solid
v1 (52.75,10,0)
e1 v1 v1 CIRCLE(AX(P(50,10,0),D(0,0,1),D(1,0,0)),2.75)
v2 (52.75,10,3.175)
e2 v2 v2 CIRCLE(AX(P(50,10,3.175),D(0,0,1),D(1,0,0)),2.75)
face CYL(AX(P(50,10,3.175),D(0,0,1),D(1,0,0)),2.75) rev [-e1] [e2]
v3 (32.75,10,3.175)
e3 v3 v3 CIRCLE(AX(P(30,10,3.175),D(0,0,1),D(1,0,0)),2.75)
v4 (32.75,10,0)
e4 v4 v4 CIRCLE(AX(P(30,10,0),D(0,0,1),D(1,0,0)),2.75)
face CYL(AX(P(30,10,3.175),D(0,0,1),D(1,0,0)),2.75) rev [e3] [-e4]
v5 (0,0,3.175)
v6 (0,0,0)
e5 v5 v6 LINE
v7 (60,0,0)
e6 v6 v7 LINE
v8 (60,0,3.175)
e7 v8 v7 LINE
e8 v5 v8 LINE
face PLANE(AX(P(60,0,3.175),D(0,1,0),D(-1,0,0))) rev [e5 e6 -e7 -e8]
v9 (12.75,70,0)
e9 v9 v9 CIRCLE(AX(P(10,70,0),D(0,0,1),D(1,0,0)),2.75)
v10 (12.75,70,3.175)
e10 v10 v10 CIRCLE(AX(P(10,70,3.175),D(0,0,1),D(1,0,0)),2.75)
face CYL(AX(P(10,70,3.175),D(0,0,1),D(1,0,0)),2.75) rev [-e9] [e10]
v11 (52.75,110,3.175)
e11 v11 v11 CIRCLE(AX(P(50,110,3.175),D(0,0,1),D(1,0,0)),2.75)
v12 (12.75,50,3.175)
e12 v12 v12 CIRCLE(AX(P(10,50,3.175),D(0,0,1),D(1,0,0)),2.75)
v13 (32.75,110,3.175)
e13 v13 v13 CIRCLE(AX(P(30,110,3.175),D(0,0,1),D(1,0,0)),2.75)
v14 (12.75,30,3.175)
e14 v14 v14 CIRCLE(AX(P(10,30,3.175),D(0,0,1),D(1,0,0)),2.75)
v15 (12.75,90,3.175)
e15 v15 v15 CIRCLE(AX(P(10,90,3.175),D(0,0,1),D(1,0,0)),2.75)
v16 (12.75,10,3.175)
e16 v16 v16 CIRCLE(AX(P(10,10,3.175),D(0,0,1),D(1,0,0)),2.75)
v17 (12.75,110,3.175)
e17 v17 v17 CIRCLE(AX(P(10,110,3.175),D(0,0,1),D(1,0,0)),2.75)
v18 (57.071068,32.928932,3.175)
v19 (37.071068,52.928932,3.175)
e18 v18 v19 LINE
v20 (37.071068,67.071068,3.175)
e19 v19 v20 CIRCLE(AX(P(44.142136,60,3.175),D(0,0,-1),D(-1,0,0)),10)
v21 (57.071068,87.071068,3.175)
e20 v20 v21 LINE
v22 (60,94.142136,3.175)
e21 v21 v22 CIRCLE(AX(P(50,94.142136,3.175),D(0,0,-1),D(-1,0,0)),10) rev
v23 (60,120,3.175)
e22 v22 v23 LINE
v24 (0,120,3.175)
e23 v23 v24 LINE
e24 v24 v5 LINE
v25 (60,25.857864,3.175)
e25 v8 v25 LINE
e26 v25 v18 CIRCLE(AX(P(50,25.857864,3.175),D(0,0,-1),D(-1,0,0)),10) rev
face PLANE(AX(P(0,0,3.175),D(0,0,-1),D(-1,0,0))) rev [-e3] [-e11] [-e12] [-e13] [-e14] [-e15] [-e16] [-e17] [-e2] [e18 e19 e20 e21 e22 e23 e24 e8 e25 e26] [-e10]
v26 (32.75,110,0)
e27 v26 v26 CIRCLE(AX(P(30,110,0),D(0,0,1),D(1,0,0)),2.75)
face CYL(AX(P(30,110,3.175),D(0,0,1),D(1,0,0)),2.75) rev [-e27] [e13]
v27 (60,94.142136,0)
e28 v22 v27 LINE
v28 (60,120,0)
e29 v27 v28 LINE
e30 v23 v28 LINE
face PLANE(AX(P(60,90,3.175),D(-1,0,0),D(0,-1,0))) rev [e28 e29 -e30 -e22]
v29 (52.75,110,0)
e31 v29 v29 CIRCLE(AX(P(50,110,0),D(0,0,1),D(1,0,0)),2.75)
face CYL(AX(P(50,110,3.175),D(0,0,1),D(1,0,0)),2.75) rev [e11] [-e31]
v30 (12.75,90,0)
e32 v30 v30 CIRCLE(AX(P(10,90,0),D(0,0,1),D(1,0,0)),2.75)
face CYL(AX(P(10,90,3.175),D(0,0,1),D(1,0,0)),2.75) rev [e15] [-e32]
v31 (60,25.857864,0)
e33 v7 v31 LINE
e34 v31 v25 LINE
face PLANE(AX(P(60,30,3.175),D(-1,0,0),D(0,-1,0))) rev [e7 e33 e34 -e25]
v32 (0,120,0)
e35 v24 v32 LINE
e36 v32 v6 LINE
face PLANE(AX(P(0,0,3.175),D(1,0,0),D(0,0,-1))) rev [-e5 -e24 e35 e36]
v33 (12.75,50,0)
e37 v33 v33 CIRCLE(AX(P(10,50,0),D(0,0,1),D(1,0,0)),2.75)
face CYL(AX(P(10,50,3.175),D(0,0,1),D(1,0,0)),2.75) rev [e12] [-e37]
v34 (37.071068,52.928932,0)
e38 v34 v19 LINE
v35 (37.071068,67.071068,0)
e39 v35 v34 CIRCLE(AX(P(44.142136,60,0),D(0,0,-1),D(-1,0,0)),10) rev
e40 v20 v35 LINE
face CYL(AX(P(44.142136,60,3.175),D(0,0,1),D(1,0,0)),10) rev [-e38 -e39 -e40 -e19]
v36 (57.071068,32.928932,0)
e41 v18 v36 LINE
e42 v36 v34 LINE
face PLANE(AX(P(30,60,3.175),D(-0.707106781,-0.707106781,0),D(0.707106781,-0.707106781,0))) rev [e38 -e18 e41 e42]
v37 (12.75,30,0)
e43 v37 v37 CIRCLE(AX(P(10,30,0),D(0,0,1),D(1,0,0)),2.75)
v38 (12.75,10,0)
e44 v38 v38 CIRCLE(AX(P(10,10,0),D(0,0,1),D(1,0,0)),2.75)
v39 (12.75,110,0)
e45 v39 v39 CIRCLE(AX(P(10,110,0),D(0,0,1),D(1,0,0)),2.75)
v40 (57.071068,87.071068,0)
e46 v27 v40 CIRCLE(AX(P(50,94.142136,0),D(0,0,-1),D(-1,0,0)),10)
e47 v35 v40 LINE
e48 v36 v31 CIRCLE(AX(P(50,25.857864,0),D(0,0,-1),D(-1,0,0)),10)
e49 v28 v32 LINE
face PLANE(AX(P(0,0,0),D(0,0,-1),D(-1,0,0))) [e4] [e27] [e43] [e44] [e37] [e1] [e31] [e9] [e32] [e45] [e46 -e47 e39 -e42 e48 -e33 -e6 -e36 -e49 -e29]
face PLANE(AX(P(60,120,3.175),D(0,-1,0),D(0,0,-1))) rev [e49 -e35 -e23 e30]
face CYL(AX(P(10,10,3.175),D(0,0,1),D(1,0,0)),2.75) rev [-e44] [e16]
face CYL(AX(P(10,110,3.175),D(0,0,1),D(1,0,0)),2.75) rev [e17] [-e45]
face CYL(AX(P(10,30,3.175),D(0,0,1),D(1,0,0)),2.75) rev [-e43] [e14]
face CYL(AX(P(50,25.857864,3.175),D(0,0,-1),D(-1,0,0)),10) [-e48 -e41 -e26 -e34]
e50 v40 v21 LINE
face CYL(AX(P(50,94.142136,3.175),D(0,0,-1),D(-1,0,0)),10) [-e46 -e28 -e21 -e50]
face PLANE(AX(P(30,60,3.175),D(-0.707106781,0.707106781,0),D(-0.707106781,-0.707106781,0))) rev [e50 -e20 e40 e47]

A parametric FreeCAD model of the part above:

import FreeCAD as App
import Part
import Sketcher
from FreeCAD import Vector
Q = App.Units.Quantity


def edges_at(feature, points):
    """Names of the edges that pass closest to the given points."""
    edges = feature.Shape.Edges
    near = lambda p: min(range(len(edges)), key=lambda i: edges[i].distToShape(Part.Vertex(*p))[0])
    return sorted({f"Edge{near(p) + 1}" for p in points})

doc = App.newDocument("Part")
params = doc.addObject("Spreadsheet::Sheet", "Params")
for row, (alias, value) in enumerate([
    ("sketch1_width", "60 mm"),
    ("sketch1_height", "120 mm"),
    ("sketch1_height2", "30 mm"),
    ("pad1_length", "3.175 mm"),
    ("sketch2_diameter", "5.5 mm"),
    ("hole_diameter", "5.5 mm"),
    ("linearpattern_pitch", "20 mm"),
    ("linearpattern2_pitch", "20 mm"),
    ("fillet_radius", "10 mm"),
    ("sketch3_diameter", "5.5 mm"),
    ("hole2_diameter", "5.5 mm"),
    ("sketch4_diameter", "5.5 mm"),
    ("hole3_diameter", "5.5 mm"),
    ("sketch5_diameter", "5.5 mm"),
    ("hole4_diameter", "5.5 mm"),
], start=1):
    params.set(f"A{row}", alias)
    params.set(f"B{row}", "=" + value)
    params.setAlias(f"B{row}", alias)

body = doc.addObject("PartDesign::Body", "Body")

# Sketch on XY plane
sketch1 = doc.addObject("Sketcher::SketchObject", "Sketch")
body.addObject(sketch1)
sketch1.AttachmentSupport = (doc.XY_Plane, [""])
sketch1.MapMode = "FlatFace"
sketch1.addGeometry(Part.LineSegment(Vector(0, 120, 0), Vector(0, 0, 0)), False)
sketch1.addGeometry(Part.LineSegment(Vector(0, 0, 0), Vector(60, 0, 0)), False)
sketch1.addGeometry(Part.LineSegment(Vector(60, 0, 0), Vector(60, 30, 0)), False)
sketch1.addGeometry(Part.LineSegment(Vector(60, 30, 0), Vector(30, 60, 0)), False)
sketch1.addGeometry(Part.LineSegment(Vector(30, 60, 0), Vector(60, 90, 0)), False)
sketch1.addGeometry(Part.LineSegment(Vector(60, 90, 0), Vector(60, 120, 0)), False)
sketch1.addGeometry(Part.LineSegment(Vector(60, 120, 0), Vector(0, 120, 0)), False)
sketch1.addConstraint(Sketcher.Constraint("Coincident", 0, 2, 1, 1))
sketch1.addConstraint(Sketcher.Constraint("Coincident", 1, 2, 2, 1))
sketch1.addConstraint(Sketcher.Constraint("Coincident", 2, 2, 3, 1))
sketch1.addConstraint(Sketcher.Constraint("Coincident", 3, 2, 4, 1))
sketch1.addConstraint(Sketcher.Constraint("Coincident", 4, 2, 5, 1))
sketch1.addConstraint(Sketcher.Constraint("Coincident", 5, 2, 6, 1))
sketch1.addConstraint(Sketcher.Constraint("Coincident", 6, 2, 0, 1))
sketch1.addConstraint(Sketcher.Constraint("Vertical", 0))
sketch1.addConstraint(Sketcher.Constraint("Horizontal", 1))
sketch1.addConstraint(Sketcher.Constraint("Vertical", 2))
sketch1.addConstraint(Sketcher.Constraint("Vertical", 5))
sketch1.addConstraint(Sketcher.Constraint("Horizontal", 6))
sketch1.addConstraint(Sketcher.Constraint("Coincident", 0, 2, -1, 1))
sketch1.addConstraint(Sketcher.Constraint("Perpendicular", 3, 4))
sketch1.addConstraint(Sketcher.Constraint("Vertical", 2, 2, 4, 2))
sketch1.addConstraint(Sketcher.Constraint("Equal", 2, 5))
sketch1.addConstraint(Sketcher.Constraint("Equal", 3, 4))
sketch1.addConstraint(Sketcher.Constraint("DistanceX", 1, 1, 1, 2, Q("60 mm")))
sketch1.addConstraint(Sketcher.Constraint("DistanceY", 0, 2, 0, 1, Q("120 mm")))
sketch1.addConstraint(Sketcher.Constraint("DistanceY", 2, 1, 2, 2, Q("30 mm")))
sketch1.setExpression("Constraints[17]", "Params.sketch1_width")
sketch1.setExpression("Constraints[18]", "Params.sketch1_height")
sketch1.setExpression("Constraints[19]", "Params.sketch1_height2")
pad1 = doc.addObject("PartDesign::Pad", "Pad")
body.addObject(pad1)
pad1.Profile = sketch1
pad1.setExpression("Length", "Params.pad1_length")

# Sketch on XY plane
sketch2 = doc.addObject("Sketcher::SketchObject", "Sketch001")
body.addObject(sketch2)
sketch2.AttachmentSupport = (doc.XY_Plane, [""])
sketch2.MapMode = "FlatFace"
sketch2.AttachmentOffset = App.Placement(Vector(0, 0, 3.175), App.Rotation())
sketch2.addGeometry(Part.Circle(Vector(10, 10, 0), Vector(0, 0, 1), 2.8), False)
sketch2.addConstraint(Sketcher.Constraint("Diameter", 0, Q("5.5 mm")))
sketch2.addConstraint(Sketcher.Constraint("DistanceX", -1, 1, 0, 3, Q("10 mm")))
sketch2.addConstraint(Sketcher.Constraint("DistanceY", -1, 1, 0, 3, Q("10 mm")))
sketch2.setExpression("Constraints[0]", "Params.sketch2_diameter")
doc.recompute()
hole = doc.addObject("PartDesign::Hole", "Hole")
body.addObject(hole)
hole.Profile = sketch2
hole.ThreadType = "None"
hole.setExpression("Diameter", "Params.hole_diameter")
hole.DepthType = "ThroughAll"
doc.recompute()

linearpattern = doc.addObject("PartDesign::LinearPattern", "LinearPattern")
body.addObject(linearpattern)
linearpattern.Originals = [hole]
linearpattern.Direction = (doc.X_Axis, [""])
linearpattern.Mode = "offset"
linearpattern.setExpression("Offset", "Params.linearpattern_pitch")
linearpattern.Occurrences = 3
body.Tip = linearpattern
doc.recompute()

linearpattern2 = doc.addObject("PartDesign::LinearPattern", "LinearPattern001")
body.addObject(linearpattern2)
linearpattern2.Originals = [hole]
linearpattern2.Direction = (doc.Y_Axis, [""])
linearpattern2.Mode = "offset"
linearpattern2.setExpression("Offset", "Params.linearpattern2_pitch")
linearpattern2.Occurrences = 6
body.Tip = linearpattern2
doc.recompute()

fillet = doc.addObject("PartDesign::Fillet", "Fillet")
body.addObject(fillet)
fillet.Base = (linearpattern2, edges_at(linearpattern2, [(60, 90, 1.587), (30, 60, 1.587), (60, 30, 1.587)]))
fillet.setExpression("Radius", "Params.fillet_radius")

# Sketch on XY plane
sketch3 = doc.addObject("Sketcher::SketchObject", "Sketch002")
body.addObject(sketch3)
sketch3.AttachmentSupport = (doc.XY_Plane, [""])
sketch3.MapMode = "FlatFace"
sketch3.AttachmentOffset = App.Placement(Vector(0, 0, 3.175), App.Rotation())
sketch3.addGeometry(Part.Circle(Vector(30, 110, 0), Vector(0, 0, 1), 2.8), False)
sketch3.addConstraint(Sketcher.Constraint("Diameter", 0, Q("5.5 mm")))
sketch3.addConstraint(Sketcher.Constraint("DistanceX", -1, 1, 0, 3, Q("30 mm")))
sketch3.addConstraint(Sketcher.Constraint("DistanceY", -1, 1, 0, 3, Q("110 mm")))
sketch3.setExpression("Constraints[0]", "Params.sketch3_diameter")
doc.recompute()
hole2 = doc.addObject("PartDesign::Hole", "Hole001")
body.addObject(hole2)
hole2.Profile = sketch3
hole2.ThreadType = "None"
hole2.setExpression("Diameter", "Params.hole2_diameter")
hole2.DepthType = "ThroughAll"

# Sketch on XY plane
sketch4 = doc.addObject("Sketcher::SketchObject", "Sketch003")
body.addObject(sketch4)
sketch4.AttachmentSupport = (doc.XY_Plane, [""])
sketch4.MapMode = "FlatFace"
sketch4.AttachmentOffset = App.Placement(Vector(0, 0, 3.175), App.Rotation())
sketch4.addGeometry(Part.Circle(Vector(50, 110, 0), Vector(0, 0, 1), 2.8), False)
sketch4.addConstraint(Sketcher.Constraint("Diameter", 0, Q("5.5 mm")))
sketch4.addConstraint(Sketcher.Constraint("DistanceX", -1, 1, 0, 3, Q("50 mm")))
sketch4.addConstraint(Sketcher.Constraint("DistanceY", -1, 1, 0, 3, Q("110 mm")))
sketch4.setExpression("Constraints[0]", "Params.sketch4_diameter")
doc.recompute()
hole3 = doc.addObject("PartDesign::Hole", "Hole002")
body.addObject(hole3)
hole3.Profile = sketch4
hole3.ThreadType = "None"
hole3.setExpression("Diameter", "Params.hole3_diameter")
hole3.DepthType = "ThroughAll"

# Sketch on XY plane
sketch5 = doc.addObject("Sketcher::SketchObject", "Sketch004")
body.addObject(sketch5)
sketch5.AttachmentSupport = (doc.XY_Plane, [""])
sketch5.MapMode = "FlatFace"
sketch5.AttachmentOffset = App.Placement(Vector(0, 0, 3.175), App.Rotation())
sketch5.addGeometry(Part.Circle(Vector(10, 110, 0), Vector(0, 0, 1), 2.8), False)
sketch5.addConstraint(Sketcher.Constraint("Diameter", 0, Q("5.5 mm")))
sketch5.addConstraint(Sketcher.Constraint("DistanceX", -1, 1, 0, 3, Q("10 mm")))
sketch5.addConstraint(Sketcher.Constraint("DistanceY", -1, 1, 0, 3, Q("110 mm")))
sketch5.setExpression("Constraints[0]", "Params.sketch5_diameter")
doc.recompute()
hole4 = doc.addObject("PartDesign::Hole", "Hole003")
body.addObject(hole4)
hole4.Profile = sketch5
hole4.ThreadType = "None"
hole4.setExpression("Diameter", "Params.hole4_diameter")
hole4.DepthType = "ThroughAll"

doc.recompute()
